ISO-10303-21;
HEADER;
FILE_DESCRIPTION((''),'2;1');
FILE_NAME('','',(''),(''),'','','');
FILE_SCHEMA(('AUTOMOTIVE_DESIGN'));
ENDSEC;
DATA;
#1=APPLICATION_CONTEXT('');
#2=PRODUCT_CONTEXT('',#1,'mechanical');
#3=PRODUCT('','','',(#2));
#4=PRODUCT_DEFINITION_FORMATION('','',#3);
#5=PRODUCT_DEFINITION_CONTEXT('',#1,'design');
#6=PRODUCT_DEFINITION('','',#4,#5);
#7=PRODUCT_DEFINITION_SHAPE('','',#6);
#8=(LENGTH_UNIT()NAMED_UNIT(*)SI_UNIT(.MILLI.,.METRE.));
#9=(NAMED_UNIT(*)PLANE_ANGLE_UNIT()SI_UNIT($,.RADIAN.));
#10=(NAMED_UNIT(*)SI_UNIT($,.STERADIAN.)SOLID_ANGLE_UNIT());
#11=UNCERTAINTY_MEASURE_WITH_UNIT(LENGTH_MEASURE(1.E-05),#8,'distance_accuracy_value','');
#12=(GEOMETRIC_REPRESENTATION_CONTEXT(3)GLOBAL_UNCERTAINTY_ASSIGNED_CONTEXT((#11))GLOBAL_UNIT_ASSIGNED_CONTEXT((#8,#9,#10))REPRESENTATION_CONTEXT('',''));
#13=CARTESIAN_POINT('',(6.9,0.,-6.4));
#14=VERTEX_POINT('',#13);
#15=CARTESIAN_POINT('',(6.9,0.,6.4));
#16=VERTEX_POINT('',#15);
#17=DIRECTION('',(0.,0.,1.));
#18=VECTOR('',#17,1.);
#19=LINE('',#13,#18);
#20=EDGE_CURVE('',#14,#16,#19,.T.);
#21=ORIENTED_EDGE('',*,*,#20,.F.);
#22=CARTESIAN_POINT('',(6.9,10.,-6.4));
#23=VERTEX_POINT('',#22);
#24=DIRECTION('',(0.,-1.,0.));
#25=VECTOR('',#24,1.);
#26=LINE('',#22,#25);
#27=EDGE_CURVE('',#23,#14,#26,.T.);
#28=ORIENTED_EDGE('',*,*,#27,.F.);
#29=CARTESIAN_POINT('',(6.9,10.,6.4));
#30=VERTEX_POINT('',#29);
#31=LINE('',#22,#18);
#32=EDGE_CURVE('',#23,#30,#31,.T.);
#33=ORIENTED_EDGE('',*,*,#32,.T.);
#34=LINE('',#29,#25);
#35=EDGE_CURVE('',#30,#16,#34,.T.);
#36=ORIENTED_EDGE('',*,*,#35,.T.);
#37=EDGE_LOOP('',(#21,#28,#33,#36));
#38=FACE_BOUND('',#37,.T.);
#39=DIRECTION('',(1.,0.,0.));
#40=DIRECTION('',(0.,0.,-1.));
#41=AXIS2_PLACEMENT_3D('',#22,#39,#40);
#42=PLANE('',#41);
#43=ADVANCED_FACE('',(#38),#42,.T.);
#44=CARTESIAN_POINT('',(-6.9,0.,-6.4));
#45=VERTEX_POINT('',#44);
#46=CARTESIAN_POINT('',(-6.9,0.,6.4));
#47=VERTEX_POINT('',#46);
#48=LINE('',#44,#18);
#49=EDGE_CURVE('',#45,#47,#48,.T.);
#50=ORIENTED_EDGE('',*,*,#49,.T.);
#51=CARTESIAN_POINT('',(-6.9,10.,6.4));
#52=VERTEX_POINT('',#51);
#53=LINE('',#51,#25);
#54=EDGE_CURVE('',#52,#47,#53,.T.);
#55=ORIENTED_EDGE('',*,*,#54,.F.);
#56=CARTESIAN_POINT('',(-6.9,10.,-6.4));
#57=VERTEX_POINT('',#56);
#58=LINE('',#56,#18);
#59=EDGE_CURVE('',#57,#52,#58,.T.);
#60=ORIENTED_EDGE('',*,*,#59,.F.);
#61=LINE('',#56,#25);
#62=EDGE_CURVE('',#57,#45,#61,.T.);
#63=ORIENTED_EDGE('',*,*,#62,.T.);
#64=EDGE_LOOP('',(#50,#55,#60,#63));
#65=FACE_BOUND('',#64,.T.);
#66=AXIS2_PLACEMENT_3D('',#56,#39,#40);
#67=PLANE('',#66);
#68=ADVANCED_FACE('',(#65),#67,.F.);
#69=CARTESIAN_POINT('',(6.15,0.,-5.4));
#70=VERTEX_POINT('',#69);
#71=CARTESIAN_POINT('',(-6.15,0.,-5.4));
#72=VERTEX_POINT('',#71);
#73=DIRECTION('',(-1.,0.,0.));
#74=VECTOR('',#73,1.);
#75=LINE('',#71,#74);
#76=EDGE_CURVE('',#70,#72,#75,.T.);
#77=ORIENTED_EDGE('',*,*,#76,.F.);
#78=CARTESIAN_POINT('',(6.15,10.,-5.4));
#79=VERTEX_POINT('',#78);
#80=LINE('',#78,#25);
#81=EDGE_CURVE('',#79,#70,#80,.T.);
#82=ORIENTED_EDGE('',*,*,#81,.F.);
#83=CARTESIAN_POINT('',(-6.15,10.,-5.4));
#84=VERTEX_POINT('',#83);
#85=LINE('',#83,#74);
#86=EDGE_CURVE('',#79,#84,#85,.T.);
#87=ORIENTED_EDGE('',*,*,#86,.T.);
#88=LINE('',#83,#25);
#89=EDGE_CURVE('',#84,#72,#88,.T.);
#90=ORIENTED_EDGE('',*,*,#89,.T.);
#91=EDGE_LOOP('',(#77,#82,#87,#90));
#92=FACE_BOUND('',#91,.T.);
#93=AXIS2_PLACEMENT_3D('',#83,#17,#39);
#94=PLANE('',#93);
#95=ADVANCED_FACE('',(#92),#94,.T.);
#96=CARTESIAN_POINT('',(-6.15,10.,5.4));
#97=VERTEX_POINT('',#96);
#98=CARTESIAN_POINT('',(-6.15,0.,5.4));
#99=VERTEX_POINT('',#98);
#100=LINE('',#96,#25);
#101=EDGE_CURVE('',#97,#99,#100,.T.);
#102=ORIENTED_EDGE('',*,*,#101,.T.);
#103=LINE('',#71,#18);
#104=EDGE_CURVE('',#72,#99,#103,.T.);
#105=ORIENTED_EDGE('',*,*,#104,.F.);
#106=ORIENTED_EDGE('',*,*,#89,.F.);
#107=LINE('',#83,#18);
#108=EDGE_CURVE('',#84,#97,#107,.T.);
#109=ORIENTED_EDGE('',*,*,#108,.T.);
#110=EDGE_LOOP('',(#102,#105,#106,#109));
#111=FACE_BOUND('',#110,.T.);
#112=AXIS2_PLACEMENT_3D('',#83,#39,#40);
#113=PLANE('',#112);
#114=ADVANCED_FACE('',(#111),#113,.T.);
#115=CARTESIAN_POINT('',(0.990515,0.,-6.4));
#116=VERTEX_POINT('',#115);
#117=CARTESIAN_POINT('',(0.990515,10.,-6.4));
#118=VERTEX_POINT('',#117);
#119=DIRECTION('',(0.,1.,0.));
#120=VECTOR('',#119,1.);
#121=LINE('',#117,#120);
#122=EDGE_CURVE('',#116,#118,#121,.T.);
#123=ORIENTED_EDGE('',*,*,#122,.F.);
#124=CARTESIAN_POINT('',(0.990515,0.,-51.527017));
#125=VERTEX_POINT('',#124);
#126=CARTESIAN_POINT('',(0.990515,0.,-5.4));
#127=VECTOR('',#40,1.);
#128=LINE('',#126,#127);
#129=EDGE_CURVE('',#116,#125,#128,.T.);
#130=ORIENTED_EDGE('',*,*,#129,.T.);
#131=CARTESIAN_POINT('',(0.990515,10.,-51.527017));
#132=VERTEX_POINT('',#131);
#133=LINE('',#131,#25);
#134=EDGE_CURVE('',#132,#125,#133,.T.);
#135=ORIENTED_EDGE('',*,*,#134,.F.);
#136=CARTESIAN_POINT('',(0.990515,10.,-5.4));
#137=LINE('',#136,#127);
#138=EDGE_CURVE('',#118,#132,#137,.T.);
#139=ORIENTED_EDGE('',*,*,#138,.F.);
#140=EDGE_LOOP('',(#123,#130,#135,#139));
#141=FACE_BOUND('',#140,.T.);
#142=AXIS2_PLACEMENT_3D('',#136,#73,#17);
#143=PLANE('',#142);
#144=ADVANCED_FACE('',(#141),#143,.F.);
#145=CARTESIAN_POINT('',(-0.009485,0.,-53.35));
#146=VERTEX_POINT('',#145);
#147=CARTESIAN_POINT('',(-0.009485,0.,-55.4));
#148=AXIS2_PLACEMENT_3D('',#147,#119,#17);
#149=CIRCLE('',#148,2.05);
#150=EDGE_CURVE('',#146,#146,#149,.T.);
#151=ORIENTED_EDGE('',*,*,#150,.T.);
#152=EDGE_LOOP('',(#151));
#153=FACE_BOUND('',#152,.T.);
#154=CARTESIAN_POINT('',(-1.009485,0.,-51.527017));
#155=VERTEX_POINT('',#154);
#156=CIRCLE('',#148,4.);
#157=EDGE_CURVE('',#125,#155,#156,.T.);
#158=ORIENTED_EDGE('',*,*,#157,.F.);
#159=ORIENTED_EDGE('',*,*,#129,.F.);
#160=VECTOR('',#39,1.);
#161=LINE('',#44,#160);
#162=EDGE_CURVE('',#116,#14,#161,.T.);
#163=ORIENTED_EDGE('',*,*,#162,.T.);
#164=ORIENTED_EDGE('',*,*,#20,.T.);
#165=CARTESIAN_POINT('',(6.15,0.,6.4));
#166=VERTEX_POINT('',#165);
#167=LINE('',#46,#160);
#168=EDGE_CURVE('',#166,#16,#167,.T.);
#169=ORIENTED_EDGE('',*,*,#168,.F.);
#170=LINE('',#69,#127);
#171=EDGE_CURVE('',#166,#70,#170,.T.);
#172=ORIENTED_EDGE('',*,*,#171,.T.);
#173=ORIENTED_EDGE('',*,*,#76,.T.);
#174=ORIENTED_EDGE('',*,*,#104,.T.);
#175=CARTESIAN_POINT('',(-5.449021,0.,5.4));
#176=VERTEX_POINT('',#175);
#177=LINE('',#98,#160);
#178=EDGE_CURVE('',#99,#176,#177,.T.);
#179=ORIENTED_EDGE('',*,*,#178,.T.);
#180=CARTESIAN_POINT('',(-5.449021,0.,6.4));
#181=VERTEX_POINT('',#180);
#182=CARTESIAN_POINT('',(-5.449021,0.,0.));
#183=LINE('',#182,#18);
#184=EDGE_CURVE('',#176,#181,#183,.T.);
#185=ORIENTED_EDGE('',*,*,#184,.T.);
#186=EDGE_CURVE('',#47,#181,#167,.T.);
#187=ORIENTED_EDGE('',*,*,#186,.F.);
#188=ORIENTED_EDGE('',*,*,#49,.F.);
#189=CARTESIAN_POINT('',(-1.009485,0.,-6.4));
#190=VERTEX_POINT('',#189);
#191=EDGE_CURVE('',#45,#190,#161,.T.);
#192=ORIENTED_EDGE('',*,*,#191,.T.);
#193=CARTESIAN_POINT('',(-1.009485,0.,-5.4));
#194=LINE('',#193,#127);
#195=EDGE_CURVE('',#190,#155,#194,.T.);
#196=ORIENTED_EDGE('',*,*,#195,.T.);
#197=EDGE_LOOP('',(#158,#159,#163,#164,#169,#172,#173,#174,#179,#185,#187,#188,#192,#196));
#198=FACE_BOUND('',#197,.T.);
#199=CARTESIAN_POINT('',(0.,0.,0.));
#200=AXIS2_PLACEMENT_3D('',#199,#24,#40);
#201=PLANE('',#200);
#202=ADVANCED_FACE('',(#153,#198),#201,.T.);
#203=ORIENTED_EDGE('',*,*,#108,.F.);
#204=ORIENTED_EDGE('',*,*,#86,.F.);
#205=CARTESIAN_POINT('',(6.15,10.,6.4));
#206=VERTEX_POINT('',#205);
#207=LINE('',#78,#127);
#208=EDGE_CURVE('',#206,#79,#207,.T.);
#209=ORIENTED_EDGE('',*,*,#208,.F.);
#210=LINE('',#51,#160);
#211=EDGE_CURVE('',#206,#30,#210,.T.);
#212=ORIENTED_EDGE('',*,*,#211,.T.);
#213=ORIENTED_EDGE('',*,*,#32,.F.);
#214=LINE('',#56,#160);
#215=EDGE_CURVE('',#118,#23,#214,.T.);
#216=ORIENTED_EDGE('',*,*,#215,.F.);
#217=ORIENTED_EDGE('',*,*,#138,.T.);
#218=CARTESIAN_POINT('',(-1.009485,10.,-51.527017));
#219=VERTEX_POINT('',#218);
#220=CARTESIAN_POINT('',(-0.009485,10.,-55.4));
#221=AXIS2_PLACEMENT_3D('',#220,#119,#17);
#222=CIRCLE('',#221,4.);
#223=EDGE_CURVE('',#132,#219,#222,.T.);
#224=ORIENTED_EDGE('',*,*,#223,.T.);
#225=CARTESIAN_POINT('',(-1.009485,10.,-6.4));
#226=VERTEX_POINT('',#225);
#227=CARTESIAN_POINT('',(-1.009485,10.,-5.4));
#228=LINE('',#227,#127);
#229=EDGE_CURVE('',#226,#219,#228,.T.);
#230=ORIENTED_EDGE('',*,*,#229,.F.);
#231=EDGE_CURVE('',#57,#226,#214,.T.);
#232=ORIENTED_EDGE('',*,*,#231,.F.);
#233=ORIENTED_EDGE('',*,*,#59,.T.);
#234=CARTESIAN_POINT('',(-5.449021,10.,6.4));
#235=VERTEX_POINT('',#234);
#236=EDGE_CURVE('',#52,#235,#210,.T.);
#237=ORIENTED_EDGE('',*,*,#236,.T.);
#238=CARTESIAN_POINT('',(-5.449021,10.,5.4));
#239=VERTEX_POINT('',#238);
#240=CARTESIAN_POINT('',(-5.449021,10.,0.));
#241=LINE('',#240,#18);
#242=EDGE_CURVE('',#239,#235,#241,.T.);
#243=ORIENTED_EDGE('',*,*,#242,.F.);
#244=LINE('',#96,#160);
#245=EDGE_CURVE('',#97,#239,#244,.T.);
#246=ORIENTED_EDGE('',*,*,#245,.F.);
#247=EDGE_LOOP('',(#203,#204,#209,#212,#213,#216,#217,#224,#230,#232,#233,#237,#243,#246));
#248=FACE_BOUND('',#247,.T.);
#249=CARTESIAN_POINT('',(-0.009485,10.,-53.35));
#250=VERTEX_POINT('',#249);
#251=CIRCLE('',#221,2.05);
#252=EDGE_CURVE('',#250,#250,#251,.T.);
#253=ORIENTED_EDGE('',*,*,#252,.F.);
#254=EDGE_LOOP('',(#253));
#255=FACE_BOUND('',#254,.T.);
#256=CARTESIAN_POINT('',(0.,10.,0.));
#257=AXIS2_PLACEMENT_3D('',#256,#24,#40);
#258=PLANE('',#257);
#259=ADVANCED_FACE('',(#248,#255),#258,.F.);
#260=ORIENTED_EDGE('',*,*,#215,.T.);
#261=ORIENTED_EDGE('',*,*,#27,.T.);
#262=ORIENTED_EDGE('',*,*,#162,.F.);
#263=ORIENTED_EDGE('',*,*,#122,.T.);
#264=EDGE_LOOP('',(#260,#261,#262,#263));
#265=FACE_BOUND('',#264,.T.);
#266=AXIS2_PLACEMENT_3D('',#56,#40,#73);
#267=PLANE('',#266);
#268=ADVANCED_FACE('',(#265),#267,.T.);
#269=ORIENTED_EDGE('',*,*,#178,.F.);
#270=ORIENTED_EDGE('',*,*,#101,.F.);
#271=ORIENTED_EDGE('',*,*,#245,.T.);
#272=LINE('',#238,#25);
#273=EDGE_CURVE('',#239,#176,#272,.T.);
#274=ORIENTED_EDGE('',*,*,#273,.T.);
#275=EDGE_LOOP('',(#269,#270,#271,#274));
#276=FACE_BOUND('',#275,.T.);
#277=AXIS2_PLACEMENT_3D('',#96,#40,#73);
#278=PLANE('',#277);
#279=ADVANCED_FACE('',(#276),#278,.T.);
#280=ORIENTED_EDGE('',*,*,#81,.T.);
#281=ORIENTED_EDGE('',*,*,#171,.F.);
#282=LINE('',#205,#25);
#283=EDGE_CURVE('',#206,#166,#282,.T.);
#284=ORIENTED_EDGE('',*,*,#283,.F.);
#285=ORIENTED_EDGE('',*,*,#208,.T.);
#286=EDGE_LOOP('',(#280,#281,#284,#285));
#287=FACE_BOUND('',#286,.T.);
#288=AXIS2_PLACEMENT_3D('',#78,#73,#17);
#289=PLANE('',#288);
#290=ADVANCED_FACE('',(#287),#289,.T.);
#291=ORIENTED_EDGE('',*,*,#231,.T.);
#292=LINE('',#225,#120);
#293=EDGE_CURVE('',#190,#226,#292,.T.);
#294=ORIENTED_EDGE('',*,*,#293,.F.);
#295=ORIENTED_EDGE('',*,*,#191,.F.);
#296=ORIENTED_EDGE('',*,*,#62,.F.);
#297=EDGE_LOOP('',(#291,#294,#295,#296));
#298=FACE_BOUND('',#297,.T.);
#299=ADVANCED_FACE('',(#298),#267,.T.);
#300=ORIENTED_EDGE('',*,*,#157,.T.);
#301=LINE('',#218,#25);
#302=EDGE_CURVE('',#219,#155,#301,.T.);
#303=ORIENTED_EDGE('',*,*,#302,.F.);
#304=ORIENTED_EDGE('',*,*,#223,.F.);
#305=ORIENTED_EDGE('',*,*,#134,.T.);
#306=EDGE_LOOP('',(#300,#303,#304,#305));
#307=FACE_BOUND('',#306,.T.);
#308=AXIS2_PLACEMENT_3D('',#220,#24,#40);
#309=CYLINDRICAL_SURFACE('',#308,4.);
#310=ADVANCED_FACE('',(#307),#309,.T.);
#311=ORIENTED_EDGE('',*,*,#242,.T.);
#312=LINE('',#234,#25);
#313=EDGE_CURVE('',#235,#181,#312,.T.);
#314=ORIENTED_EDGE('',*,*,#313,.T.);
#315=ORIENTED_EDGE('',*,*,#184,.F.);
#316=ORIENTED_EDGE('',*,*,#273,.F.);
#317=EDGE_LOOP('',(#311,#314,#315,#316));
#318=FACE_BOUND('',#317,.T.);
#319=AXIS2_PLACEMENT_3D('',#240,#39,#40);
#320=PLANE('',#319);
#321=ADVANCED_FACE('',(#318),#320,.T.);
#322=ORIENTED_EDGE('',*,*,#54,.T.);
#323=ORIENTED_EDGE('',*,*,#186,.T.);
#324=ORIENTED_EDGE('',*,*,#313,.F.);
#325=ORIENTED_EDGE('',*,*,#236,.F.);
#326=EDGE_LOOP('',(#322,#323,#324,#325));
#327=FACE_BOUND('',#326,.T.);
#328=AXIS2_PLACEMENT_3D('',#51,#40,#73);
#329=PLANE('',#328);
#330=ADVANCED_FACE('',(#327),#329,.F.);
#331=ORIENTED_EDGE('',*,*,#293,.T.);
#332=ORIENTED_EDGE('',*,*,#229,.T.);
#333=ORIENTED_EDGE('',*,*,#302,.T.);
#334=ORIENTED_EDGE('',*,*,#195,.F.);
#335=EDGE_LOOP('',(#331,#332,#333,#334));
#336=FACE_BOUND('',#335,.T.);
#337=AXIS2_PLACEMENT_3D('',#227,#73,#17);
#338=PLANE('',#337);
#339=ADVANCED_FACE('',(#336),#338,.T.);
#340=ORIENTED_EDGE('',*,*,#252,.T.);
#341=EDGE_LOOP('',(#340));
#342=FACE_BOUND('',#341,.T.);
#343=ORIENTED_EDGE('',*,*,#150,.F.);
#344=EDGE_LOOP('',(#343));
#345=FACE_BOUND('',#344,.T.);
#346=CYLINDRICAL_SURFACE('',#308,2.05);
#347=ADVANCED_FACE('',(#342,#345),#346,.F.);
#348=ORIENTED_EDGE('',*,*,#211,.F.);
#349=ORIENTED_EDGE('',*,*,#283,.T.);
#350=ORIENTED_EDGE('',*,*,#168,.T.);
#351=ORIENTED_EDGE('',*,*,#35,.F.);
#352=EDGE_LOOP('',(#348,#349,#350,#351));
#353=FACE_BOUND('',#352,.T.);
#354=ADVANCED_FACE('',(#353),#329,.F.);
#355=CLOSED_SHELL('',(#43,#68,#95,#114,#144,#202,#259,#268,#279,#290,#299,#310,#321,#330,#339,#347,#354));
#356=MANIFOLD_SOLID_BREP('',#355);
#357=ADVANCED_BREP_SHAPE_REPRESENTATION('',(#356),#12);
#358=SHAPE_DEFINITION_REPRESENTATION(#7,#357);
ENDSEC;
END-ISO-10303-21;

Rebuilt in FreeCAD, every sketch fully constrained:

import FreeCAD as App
import Part
import Sketcher

V = App.Vector

doc = App.newDocument("Part")
body = doc.addObject("PartDesign::Body", "Body")

# Sketch on XZ plane
sketch1 = doc.addObject("Sketcher::SketchObject", "Sketch")
body.addObject(sketch1)
sketch1.AttachmentSupport = (doc.XZ_Plane, [""])
sketch1.MapMode = "FlatFace"
sketch1.addGeometry([
    Part.LineSegment(V(-6.9, -6.4, 0), V(-6.9, 6.4, 0)),
    Part.LineSegment(V(-6.9, 6.4, 0), V(6.9, 6.4, 0)),
    Part.LineSegment(V(6.9, 6.4, 0), V(6.9, -6.4, 0)),
    Part.LineSegment(V(6.9, -6.4, 0), V(-6.9, -6.4, 0)),
], False)
sketch1.addConstraint([
    Sketcher.Constraint("Coincident", 0, 2, 1, 1),
    Sketcher.Constraint("Coincident", 1, 2, 2, 1),
    Sketcher.Constraint("Coincident", 2, 2, 3, 1),
    Sketcher.Constraint("Coincident", 3, 2, 0, 1),
    Sketcher.Constraint("Vertical", 0),
    Sketcher.Constraint("Horizontal", 1),
    Sketcher.Constraint("Vertical", 2),
    Sketcher.Constraint("Horizontal", 3),
    Sketcher.Constraint("Symmetric", 0, 2, 2, 2, -1, 1),
    Sketcher.Constraint("DistanceX", 1, 1, 1, 2, 13.8),
    Sketcher.Constraint("DistanceY", 0, 1, 0, 2, 12.8),
])
pad1 = doc.addObject("PartDesign::Pad", "Pad")
body.addObject(pad1)
pad1.Profile = sketch1
pad1.Length = 10
pad1.Reversed = True

# Sketch on XZ plane
sketch2 = doc.addObject("Sketcher::SketchObject", "Sketch001")
body.addObject(sketch2)
sketch2.AttachmentSupport = (doc.XZ_Plane, [""])
sketch2.MapMode = "FlatFace"
sketch2.addGeometry([
    Part.LineSegment(V(-6.15, -5.4, 0), V(-6.15, 5.4, 0)),
    Part.LineSegment(V(-6.15, 5.4, 0), V(6.15, 5.4, 0)),
    Part.LineSegment(V(6.15, 5.4, 0), V(6.15, -5.4, 0)),
    Part.LineSegment(V(6.15, -5.4, 0), V(-6.15, -5.4, 0)),
], False)
sketch2.addConstraint([
    Sketcher.Constraint("Coincident", 0, 2, 1, 1),
    Sketcher.Constraint("Coincident", 1, 2, 2, 1),
    Sketcher.Constraint("Coincident", 2, 2, 3, 1),
    Sketcher.Constraint("Coincident", 3, 2, 0, 1),
    Sketcher.Constraint("Vertical", 0),
    Sketcher.Constraint("Horizontal", 1),
    Sketcher.Constraint("Vertical", 2),
    Sketcher.Constraint("Horizontal", 3),
    Sketcher.Constraint("Symmetric", 0, 2, 2, 2, -1, 1),
    Sketcher.Constraint("DistanceX", 1, 1, 1, 2, 12.3),
    Sketcher.Constraint("DistanceY", 0, 1, 0, 2, 10.8),
])
pocket1 = doc.addObject("PartDesign::Pocket", "Pocket")
body.addObject(pocket1)
pocket1.Profile = sketch2
pocket1.Length = 10

# Sketch on XZ plane
sketch3 = doc.addObject("Sketcher::SketchObject", "Sketch002")
body.addObject(sketch3)
sketch3.AttachmentSupport = (doc.XZ_Plane, [""])
sketch3.MapMode = "FlatFace"
sketch3.addGeometry([
    Part.LineSegment(V(-5.449021, 0, 0), V(-5.449021, 6.4, 0)),
    Part.LineSegment(V(-5.449021, 6.4, 0), V(6.15, 6.4, 0)),
    Part.LineSegment(V(6.15, 6.4, 0), V(6.15, 0, 0)),
    Part.LineSegment(V(6.15, 0, 0), V(-5.449021, 0, 0)),
], False)
sketch3.addConstraint([
    Sketcher.Constraint("Coincident", 0, 2, 1, 1),
    Sketcher.Constraint("Coincident", 1, 2, 2, 1),
    Sketcher.Constraint("Coincident", 2, 2, 3, 1),
    Sketcher.Constraint("Coincident", 3, 2, 0, 1),
    Sketcher.Constraint("Vertical", 0),
    Sketcher.Constraint("Horizontal", 1),
    Sketcher.Constraint("Vertical", 2),
    Sketcher.Constraint("Horizontal", 3),
    Sketcher.Constraint("PointOnObject", 2, 2, -1),
    Sketcher.Constraint("DistanceY", 0, 1, 0, 2, 6.4),
    Sketcher.Constraint("DistanceX", -1, 1, 1, 2, 6.15),
    Sketcher.Constraint("DistanceX", 1, 1, 1, 2, 11.599021),
])
pocket2 = doc.addObject("PartDesign::Pocket", "Pocket001")
body.addObject(pocket2)
pocket2.Profile = sketch3
pocket2.Length = 10

# Sketch on XZ plane
sketch4 = doc.addObject("Sketcher::SketchObject", "Sketch003")
body.addObject(sketch4)
sketch4.AttachmentSupport = (doc.XZ_Plane, [""])
sketch4.MapMode = "FlatFace"
sketch4.addGeometry([
    Part.LineSegment(V(-1.009485, -55.4, 0), V(-1.009485, -5.4, 0)),
    Part.LineSegment(V(-1.009485, -5.4, 0), V(0.990515, -5.4, 0)),
    Part.LineSegment(V(0.990515, -5.4, 0), V(0.990515, -55.4, 0)),
    Part.LineSegment(V(0.990515, -55.4, 0), V(-1.009485, -55.4, 0)),
], False)
sketch4.addConstraint([
    Sketcher.Constraint("Coincident", 0, 2, 1, 1),
    Sketcher.Constraint("Coincident", 1, 2, 2, 1),
    Sketcher.Constraint("Coincident", 2, 2, 3, 1),
    Sketcher.Constraint("Coincident", 3, 2, 0, 1),
    Sketcher.Constraint("Vertical", 0),
    Sketcher.Constraint("Horizontal", 1),
    Sketcher.Constraint("Vertical", 2),
    Sketcher.Constraint("Horizontal", 3),
    Sketcher.Constraint("DistanceX", 1, 1, 1, 2, 2.0),
    Sketcher.Constraint("DistanceY", 0, 1, 0, 2, 50.0),
    Sketcher.Constraint("DistanceY", 0, 2, -1, 1, 5.4),
    Sketcher.Constraint("DistanceX", 0, 2, -1, 1, 1.009485),
])
pad2 = doc.addObject("PartDesign::Pad", "Pad001")
body.addObject(pad2)
pad2.Profile = sketch4
pad2.Length = 10
pad2.Reversed = True

# Sketch on XZ plane
sketch5 = doc.addObject("Sketcher::SketchObject", "Sketch004")
body.addObject(sketch5)
sketch5.AttachmentSupport = (doc.XZ_Plane, [""])
sketch5.MapMode = "FlatFace"
sketch5.addGeometry(Part.Circle(V(-0.009485, -55.4, 0), V(0, 0, 1), 4), False)
sketch5.addConstraint([
    Sketcher.Constraint("Diameter", 0, 8.0),
    Sketcher.Constraint("DistanceY", 0, 3, -1, 1, 55.4),
    Sketcher.Constraint("DistanceX", 0, 3, -1, 1, 0.009485),
])
pad3 = doc.addObject("PartDesign::Pad", "Pad002")
body.addObject(pad3)
pad3.Profile = sketch5
pad3.Length = 10
pad3.Reversed = True

# Sketch on XZ plane
sketch6 = doc.addObject("Sketcher::SketchObject", "Sketch005")
body.addObject(sketch6)
sketch6.AttachmentSupport = (doc.XZ_Plane, [""])
sketch6.MapMode = "FlatFace"
sketch6.addGeometry(Part.Circle(V(-0.009485, -55.4, 0), V(0, 0, 1), 2.05), False)
sketch6.addConstraint([
    Sketcher.Constraint("Diameter", 0, 4.1),
    Sketcher.Constraint("DistanceY", 0, 3, -1, 1, 55.4),
    Sketcher.Constraint("DistanceX", 0, 3, -1, 1, 0.009485),
])
pocket3 = doc.addObject("PartDesign::Pocket", "Pocket002")
body.addObject(pocket3)
pocket3.Profile = sketch6
pocket3.Length = 10

doc.recompute()
